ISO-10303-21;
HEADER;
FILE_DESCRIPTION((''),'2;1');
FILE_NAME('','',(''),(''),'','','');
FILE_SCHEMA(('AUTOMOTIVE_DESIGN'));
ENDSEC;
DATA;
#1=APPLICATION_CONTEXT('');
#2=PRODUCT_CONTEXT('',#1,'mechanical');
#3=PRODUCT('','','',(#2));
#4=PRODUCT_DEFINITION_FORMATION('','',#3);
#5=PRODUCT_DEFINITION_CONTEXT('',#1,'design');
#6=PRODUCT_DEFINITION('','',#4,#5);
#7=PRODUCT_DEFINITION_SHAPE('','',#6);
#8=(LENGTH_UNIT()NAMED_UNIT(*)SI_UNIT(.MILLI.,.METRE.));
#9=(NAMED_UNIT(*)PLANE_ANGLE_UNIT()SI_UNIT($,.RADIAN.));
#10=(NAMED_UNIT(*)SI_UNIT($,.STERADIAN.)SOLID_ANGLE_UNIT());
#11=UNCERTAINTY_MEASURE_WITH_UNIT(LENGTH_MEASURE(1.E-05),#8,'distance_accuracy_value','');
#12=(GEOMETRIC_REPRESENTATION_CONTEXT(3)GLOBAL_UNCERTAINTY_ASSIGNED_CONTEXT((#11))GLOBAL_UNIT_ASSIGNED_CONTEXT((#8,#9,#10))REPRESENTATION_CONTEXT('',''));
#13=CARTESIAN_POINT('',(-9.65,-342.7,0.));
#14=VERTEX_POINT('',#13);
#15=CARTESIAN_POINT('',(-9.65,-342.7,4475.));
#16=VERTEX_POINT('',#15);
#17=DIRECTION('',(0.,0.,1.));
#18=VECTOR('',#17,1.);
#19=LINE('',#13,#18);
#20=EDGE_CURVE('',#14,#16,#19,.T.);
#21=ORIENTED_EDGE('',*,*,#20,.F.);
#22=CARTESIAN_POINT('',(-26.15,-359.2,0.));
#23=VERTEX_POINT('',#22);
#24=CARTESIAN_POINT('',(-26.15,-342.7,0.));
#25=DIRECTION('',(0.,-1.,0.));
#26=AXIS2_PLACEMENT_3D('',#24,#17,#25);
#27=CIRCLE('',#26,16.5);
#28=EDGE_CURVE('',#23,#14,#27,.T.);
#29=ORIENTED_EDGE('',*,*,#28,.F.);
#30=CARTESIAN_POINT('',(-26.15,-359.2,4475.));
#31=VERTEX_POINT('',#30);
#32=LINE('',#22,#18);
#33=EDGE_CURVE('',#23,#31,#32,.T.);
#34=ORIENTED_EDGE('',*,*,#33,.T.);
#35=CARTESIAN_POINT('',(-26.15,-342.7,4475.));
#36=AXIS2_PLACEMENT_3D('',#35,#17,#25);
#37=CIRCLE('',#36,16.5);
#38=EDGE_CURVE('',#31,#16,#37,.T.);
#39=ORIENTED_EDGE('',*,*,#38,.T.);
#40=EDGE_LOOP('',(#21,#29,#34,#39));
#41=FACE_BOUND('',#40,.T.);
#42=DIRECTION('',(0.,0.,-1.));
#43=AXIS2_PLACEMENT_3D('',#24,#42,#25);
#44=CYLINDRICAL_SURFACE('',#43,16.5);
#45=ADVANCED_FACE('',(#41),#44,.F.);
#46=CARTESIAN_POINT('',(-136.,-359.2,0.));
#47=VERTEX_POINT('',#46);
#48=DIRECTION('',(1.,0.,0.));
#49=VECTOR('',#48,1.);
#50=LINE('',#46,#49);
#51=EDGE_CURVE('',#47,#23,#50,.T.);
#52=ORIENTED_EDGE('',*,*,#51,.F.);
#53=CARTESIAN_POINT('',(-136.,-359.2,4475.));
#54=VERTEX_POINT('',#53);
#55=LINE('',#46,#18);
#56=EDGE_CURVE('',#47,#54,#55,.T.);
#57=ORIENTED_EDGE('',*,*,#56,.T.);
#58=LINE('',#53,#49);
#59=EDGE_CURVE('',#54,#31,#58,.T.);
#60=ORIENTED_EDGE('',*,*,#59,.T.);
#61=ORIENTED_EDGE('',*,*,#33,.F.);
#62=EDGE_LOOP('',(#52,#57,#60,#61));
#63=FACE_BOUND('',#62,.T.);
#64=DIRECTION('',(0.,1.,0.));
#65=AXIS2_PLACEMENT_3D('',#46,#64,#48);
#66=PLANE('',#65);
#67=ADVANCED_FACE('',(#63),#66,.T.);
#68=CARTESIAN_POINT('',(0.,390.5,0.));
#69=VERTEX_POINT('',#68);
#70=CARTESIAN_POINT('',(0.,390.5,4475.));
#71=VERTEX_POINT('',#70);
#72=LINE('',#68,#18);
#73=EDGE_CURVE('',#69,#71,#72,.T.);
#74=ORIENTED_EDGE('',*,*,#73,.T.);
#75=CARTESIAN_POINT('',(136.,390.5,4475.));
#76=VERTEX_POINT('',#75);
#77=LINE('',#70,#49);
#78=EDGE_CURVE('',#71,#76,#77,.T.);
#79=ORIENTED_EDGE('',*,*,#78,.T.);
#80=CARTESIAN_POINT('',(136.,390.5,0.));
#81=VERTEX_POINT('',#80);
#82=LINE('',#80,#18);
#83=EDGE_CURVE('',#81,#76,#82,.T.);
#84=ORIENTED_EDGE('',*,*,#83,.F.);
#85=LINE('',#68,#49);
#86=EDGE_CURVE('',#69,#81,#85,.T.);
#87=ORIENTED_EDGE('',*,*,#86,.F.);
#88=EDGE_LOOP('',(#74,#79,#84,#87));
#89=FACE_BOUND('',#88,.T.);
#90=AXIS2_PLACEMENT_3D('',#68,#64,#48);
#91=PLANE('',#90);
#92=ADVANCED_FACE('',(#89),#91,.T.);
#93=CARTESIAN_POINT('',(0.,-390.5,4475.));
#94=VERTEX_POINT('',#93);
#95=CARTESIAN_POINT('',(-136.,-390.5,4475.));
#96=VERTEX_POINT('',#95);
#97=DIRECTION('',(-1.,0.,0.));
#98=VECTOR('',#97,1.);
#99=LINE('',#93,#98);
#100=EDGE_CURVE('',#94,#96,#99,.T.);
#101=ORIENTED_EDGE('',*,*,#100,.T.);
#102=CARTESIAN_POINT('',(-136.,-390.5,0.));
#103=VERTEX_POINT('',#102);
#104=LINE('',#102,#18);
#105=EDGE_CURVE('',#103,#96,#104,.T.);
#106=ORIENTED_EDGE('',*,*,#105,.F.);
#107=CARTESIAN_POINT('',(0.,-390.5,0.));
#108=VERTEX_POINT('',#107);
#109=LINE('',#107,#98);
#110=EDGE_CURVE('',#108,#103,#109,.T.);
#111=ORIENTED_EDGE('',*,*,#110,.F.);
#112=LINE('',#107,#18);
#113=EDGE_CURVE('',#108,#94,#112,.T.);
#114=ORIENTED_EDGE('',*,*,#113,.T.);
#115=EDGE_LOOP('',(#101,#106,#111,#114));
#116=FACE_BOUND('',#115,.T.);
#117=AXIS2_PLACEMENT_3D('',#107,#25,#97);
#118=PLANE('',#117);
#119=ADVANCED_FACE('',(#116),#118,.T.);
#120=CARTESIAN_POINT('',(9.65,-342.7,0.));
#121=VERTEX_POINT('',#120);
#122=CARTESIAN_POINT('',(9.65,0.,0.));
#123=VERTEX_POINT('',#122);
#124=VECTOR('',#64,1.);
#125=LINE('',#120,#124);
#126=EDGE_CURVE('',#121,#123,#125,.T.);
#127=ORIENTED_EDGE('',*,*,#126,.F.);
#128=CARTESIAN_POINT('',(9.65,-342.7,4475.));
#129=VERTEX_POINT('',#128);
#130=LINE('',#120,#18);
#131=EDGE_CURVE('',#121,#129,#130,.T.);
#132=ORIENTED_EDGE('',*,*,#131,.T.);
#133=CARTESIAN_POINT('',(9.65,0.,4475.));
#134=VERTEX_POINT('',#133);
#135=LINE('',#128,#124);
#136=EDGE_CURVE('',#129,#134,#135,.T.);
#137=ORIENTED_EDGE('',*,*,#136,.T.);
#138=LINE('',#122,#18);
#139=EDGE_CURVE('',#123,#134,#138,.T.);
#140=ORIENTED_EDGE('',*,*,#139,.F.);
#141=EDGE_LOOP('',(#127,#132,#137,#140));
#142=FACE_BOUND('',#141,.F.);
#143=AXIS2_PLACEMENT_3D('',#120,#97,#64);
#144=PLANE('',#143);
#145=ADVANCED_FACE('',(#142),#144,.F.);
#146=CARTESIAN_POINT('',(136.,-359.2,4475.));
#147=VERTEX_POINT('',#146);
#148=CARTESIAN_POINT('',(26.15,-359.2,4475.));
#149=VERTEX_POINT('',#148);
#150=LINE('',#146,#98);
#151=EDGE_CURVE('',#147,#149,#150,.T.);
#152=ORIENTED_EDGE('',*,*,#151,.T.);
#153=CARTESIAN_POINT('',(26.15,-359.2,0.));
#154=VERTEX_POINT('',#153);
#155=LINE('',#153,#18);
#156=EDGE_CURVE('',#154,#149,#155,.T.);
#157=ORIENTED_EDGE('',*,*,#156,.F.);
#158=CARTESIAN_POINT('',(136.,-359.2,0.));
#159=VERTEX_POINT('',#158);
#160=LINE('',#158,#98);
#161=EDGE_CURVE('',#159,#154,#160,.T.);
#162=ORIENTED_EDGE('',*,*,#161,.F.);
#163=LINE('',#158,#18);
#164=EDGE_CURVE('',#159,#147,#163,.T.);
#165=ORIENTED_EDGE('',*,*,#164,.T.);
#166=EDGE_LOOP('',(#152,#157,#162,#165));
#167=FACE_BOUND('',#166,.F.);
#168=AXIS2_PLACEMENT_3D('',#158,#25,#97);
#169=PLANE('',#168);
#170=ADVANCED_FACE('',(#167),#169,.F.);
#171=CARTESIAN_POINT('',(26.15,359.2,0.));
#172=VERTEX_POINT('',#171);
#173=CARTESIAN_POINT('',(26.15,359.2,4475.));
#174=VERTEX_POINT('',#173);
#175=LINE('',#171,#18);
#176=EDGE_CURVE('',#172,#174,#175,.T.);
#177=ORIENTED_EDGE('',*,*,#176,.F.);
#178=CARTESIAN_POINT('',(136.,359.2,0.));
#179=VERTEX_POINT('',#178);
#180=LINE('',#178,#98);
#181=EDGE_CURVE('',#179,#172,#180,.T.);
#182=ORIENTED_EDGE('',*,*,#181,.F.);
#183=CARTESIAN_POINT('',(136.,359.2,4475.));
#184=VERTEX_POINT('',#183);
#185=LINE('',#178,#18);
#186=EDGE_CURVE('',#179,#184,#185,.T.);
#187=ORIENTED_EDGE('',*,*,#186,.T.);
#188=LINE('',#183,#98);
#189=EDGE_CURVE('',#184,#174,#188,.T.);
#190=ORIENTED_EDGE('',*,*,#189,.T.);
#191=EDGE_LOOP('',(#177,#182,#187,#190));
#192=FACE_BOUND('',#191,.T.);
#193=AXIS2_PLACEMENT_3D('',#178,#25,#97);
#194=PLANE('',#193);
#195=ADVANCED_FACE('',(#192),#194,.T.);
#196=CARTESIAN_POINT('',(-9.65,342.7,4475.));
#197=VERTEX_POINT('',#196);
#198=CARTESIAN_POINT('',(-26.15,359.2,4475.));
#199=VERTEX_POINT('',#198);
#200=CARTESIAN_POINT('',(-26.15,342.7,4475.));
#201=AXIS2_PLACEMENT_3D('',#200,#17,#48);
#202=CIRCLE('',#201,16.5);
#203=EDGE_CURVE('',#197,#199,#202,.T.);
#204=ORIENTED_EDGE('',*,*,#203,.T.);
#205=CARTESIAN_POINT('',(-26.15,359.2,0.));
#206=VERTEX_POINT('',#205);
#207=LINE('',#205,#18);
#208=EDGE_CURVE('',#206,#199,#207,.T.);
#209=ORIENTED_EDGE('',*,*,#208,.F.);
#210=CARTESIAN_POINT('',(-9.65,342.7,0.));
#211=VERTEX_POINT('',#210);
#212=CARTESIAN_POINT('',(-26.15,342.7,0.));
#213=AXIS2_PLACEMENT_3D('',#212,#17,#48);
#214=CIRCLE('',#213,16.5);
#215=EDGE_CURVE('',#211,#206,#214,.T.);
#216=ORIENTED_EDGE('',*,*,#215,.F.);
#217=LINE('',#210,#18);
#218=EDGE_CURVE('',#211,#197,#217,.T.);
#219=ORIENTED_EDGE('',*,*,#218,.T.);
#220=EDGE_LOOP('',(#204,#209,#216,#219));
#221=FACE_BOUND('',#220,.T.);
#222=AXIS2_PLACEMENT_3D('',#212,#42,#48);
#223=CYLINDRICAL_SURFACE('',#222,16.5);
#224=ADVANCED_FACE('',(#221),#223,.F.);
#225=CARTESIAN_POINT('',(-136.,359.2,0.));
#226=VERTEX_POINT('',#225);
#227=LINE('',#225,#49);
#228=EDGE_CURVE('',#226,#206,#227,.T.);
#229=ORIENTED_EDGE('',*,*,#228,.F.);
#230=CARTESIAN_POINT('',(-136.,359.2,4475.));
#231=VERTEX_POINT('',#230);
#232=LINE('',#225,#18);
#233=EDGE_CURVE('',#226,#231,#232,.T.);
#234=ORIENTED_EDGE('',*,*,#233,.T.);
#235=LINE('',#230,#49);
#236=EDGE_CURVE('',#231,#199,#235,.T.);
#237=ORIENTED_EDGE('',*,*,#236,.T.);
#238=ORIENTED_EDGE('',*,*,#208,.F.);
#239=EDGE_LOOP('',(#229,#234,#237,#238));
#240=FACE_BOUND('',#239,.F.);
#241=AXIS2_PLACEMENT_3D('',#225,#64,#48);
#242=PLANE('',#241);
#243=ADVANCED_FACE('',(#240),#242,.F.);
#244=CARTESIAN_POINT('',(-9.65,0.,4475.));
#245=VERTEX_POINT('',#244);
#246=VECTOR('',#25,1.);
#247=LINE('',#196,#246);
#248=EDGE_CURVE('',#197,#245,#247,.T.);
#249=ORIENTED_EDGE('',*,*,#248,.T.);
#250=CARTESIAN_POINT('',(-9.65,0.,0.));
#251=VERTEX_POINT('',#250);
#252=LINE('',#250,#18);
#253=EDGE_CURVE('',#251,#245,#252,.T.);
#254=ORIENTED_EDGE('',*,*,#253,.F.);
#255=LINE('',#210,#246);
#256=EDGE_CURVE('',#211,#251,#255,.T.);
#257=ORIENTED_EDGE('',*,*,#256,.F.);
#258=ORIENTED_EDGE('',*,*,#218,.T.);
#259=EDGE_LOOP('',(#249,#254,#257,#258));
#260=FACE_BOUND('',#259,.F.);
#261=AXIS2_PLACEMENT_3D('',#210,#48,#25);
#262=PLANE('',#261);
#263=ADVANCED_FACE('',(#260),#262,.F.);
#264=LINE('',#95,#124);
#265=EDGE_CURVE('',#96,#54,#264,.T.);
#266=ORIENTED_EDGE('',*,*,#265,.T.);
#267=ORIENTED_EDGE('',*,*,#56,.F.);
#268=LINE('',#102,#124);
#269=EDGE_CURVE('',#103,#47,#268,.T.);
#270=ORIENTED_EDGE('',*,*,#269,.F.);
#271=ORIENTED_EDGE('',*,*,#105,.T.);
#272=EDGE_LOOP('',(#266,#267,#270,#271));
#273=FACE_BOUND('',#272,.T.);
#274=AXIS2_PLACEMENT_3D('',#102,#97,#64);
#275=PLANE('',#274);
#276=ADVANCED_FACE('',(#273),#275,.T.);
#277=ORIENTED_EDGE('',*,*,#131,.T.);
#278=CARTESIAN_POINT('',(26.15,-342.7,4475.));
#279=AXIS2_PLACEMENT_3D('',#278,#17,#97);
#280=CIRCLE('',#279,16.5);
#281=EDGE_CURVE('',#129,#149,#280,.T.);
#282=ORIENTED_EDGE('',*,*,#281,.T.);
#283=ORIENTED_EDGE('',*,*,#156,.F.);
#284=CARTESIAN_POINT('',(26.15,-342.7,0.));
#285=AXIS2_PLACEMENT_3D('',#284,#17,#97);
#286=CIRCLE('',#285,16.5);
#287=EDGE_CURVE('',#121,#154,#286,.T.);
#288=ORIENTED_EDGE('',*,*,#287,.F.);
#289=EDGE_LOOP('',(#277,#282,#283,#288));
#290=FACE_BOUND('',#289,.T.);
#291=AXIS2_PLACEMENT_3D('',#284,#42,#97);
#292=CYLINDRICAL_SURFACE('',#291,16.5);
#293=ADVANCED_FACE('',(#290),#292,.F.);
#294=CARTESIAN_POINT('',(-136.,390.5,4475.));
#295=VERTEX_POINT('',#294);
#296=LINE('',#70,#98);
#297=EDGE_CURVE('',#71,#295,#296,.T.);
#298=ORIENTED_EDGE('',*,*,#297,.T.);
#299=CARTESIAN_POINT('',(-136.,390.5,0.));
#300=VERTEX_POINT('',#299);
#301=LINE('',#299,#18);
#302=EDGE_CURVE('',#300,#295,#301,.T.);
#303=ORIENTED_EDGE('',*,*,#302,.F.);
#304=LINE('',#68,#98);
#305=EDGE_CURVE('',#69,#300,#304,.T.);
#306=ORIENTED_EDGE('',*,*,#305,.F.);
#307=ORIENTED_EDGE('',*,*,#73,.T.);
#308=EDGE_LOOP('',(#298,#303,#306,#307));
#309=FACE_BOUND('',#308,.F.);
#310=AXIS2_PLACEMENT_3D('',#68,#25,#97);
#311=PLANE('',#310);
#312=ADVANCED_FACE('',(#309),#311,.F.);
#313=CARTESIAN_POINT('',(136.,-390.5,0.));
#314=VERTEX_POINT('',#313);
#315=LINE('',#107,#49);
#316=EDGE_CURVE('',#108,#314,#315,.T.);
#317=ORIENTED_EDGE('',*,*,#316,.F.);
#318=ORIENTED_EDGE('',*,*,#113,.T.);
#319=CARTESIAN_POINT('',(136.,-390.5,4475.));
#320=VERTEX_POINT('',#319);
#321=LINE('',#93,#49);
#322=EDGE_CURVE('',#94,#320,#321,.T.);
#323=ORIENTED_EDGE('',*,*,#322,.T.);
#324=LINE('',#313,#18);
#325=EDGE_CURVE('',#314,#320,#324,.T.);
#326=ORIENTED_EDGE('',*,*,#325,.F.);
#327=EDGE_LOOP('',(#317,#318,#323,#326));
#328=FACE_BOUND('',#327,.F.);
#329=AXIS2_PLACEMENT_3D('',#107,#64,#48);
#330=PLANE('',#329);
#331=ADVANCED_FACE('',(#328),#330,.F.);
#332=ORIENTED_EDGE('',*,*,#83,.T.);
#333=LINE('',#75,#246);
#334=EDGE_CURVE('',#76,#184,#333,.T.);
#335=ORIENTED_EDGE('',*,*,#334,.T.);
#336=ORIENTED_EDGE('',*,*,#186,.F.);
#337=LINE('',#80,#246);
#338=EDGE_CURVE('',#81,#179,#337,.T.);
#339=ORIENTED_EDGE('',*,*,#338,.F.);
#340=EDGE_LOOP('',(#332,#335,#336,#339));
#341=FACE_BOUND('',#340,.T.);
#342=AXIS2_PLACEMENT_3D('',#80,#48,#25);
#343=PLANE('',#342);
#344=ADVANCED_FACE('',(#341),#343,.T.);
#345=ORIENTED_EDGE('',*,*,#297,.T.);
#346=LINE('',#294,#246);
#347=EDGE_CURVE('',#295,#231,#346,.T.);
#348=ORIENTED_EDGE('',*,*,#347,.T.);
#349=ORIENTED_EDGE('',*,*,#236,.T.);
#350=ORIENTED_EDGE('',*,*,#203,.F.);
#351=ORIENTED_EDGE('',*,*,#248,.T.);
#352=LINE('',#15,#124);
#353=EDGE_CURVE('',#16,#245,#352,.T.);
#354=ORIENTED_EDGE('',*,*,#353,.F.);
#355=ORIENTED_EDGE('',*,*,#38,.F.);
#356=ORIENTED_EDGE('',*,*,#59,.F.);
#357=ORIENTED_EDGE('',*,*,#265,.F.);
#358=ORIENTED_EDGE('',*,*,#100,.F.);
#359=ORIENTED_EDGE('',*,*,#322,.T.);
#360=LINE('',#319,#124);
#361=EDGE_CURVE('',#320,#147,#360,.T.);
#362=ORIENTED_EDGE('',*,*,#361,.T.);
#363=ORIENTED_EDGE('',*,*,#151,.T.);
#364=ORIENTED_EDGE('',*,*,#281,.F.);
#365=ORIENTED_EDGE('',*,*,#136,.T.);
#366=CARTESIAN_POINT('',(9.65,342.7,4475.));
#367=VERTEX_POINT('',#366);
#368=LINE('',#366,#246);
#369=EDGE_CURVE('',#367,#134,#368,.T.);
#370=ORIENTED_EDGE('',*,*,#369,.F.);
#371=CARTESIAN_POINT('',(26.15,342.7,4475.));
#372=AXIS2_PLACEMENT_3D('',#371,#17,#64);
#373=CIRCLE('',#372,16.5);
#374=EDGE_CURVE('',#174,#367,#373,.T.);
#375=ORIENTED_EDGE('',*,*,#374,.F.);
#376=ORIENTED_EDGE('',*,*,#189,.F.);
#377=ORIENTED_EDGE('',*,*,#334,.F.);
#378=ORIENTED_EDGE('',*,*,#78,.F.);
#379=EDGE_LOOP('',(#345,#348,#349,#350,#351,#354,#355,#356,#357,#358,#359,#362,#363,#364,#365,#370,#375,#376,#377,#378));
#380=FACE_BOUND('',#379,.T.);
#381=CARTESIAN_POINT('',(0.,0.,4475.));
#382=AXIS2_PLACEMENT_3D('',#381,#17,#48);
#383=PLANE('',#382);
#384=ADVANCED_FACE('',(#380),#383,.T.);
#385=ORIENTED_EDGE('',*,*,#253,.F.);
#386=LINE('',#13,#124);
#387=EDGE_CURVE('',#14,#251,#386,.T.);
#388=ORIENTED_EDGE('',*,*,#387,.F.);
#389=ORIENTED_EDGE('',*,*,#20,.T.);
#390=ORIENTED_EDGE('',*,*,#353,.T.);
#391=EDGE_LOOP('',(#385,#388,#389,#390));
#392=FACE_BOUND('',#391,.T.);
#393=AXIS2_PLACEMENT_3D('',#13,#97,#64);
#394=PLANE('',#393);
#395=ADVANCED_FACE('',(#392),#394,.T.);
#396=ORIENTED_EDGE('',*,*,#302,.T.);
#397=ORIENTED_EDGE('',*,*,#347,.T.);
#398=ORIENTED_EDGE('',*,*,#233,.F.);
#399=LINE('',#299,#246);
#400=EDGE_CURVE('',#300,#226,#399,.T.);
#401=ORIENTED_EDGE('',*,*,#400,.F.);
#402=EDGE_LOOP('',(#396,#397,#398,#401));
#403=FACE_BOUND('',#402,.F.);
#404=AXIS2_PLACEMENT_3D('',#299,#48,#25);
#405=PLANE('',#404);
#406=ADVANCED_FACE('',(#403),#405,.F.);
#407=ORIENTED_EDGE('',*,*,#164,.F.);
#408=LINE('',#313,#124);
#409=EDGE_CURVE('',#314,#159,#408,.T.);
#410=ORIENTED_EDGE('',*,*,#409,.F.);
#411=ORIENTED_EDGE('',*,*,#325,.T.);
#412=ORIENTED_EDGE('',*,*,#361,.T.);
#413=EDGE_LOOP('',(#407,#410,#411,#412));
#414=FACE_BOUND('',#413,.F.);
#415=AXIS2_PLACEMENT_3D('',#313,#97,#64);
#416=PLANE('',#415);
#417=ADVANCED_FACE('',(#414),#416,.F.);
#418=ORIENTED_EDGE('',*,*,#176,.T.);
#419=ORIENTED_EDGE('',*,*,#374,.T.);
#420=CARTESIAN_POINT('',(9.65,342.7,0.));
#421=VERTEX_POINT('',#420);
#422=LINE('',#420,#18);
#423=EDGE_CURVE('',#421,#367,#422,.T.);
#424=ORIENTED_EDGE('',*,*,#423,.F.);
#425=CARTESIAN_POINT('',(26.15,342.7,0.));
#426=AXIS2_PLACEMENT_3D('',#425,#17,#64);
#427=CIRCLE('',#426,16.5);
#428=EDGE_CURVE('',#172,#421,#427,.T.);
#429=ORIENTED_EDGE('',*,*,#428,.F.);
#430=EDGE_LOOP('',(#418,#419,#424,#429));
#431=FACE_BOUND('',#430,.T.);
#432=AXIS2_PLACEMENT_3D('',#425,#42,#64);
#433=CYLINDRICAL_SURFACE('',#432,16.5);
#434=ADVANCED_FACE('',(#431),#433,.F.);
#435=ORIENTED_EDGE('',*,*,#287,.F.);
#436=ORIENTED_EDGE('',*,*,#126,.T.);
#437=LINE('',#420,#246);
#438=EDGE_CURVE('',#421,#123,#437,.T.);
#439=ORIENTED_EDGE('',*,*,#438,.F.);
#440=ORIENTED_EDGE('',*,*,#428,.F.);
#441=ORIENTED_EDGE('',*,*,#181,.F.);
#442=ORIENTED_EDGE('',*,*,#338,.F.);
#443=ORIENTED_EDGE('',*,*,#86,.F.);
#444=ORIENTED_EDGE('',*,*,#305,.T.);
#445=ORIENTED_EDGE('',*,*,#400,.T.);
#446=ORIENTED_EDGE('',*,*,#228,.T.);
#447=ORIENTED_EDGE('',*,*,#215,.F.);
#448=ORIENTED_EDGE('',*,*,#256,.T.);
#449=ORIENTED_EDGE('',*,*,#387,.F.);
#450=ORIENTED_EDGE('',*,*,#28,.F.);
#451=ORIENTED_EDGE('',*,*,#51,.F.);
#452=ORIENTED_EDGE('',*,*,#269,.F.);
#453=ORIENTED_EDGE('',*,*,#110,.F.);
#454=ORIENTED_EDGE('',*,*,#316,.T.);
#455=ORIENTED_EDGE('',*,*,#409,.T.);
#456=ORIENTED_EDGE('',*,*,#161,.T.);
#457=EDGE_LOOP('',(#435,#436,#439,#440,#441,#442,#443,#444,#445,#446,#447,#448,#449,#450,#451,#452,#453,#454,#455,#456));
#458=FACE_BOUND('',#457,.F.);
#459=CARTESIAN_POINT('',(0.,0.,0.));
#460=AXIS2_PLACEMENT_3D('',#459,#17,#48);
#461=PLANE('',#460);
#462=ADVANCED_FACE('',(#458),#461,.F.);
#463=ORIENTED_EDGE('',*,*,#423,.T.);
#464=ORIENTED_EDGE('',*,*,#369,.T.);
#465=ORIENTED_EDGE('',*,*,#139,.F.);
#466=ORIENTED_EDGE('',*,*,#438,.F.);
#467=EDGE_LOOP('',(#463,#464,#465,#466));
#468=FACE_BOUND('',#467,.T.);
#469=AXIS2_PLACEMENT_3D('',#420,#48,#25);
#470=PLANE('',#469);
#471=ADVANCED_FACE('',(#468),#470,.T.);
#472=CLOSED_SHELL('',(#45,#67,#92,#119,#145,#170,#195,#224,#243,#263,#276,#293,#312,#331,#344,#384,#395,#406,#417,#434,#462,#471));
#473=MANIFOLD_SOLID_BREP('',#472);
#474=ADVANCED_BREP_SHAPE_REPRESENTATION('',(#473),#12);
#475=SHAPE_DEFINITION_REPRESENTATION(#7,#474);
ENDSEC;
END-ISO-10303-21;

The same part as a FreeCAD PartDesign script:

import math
import FreeCAD as App
import Part
import Sketcher
from FreeCAD import Vector
Q = App.Units.Quantity

doc = App.newDocument("Part")
params = doc.addObject("Spreadsheet::Sheet", "Params")
for row, (alias, value) in enumerate([
    ("sketch1_radius", "16.5 mm"),
    ("sketch1_height", "31.3 mm"),
    ("pad1_length", "4475 mm"),
], start=1):
    params.set(f"A{row}", alias)
    params.set(f"B{row}", "=" + value)
    params.setAlias(f"B{row}", alias)

body = doc.addObject("PartDesign::Body", "Body")

# Sketch on XY plane
sketch1 = body.newObject("Sketcher::SketchObject", "Sketch")
sketch1.AttachmentSupport = (doc.getObject("XY_Plane"), [""])
sketch1.MapMode = "FlatFace"
sketch1.addGeometry(Part.LineSegment(Vector(-136, -359, 0), Vector(-136, -390, 0)), False)
sketch1.addGeometry(Part.LineSegment(Vector(-136, -390, 0), Vector(136, -390, 0)), False)
sketch1.addGeometry(Part.LineSegment(Vector(136, -390, 0), Vector(136, -359, 0)), False)
sketch1.addGeometry(Part.LineSegment(Vector(136, -359, 0), Vector(26, -359, 0)), False)
sketch1.addGeometry(Part.ArcOfCircle(Part.Circle(Vector(26, -343, 0), Vector(0, 0, 1), 16), math.radians(180), math.radians(270)), False)
sketch1.addGeometry(Part.LineSegment(Vector(10, -343, 0), Vector(10, 343, 0)), False)
sketch1.addGeometry(Part.ArcOfCircle(Part.Circle(Vector(26, 343, 0), Vector(0, 0, 1), 16), math.radians(90), math.radians(180)), False)
sketch1.addGeometry(Part.LineSegment(Vector(26, 359, 0), Vector(136, 359, 0)), False)
sketch1.addGeometry(Part.LineSegment(Vector(136, 359, 0), Vector(136, 390, 0)), False)
sketch1.addGeometry(Part.LineSegment(Vector(136, 390, 0), Vector(-136, 390, 0)), False)
sketch1.addGeometry(Part.LineSegment(Vector(-136, 390, 0), Vector(-136, 359, 0)), False)
sketch1.addGeometry(Part.LineSegment(Vector(-136, 359, 0), Vector(-26, 359, 0)), False)
sketch1.addGeometry(Part.ArcOfCircle(Part.Circle(Vector(-26, 343, 0), Vector(0, 0, 1), 16), math.radians(0), math.radians(90)), False)
sketch1.addGeometry(Part.LineSegment(Vector(-10, 343, 0), Vector(-10, -343, 0)), False)
sketch1.addGeometry(Part.ArcOfCircle(Part.Circle(Vector(-26, -343, 0), Vector(0, 0, 1), 16), math.radians(-90), math.radians(0)), False)
sketch1.addGeometry(Part.LineSegment(Vector(-26, -359, 0), Vector(-136, -359, 0)), False)
sketch1.addConstraint(Sketcher.Constraint("Coincident", 0, 2, 1, 1))
sketch1.addConstraint(Sketcher.Constraint("Coincident", 1, 2, 2, 1))
sketch1.addConstraint(Sketcher.Constraint("Coincident", 2, 2, 3, 1))
sketch1.addConstraint(Sketcher.Constraint("Tangent", 3, 2, 4, 2))
sketch1.addConstraint(Sketcher.Constraint("Tangent", 4, 1, 5, 1))
sketch1.addConstraint(Sketcher.Constraint("Tangent", 5, 2, 6, 2))
sketch1.addConstraint(Sketcher.Constraint("Tangent", 6, 1, 7, 1))
sketch1.addConstraint(Sketcher.Constraint("Coincident", 7, 2, 8, 1))
sketch1.addConstraint(Sketcher.Constraint("Coincident", 8, 2, 9, 1))
sketch1.addConstraint(Sketcher.Constraint("Coincident", 9, 2, 10, 1))
sketch1.addConstraint(Sketcher.Constraint("Coincident", 10, 2, 11, 1))
sketch1.addConstraint(Sketcher.Constraint("Tangent", 11, 2, 12, 2))
sketch1.addConstraint(Sketcher.Constraint("Tangent", 12, 1, 13, 1))
sketch1.addConstraint(Sketcher.Constraint("Tangent", 13, 2, 14, 2))
sketch1.addConstraint(Sketcher.Constraint("Tangent", 14, 1, 15, 1))
sketch1.addConstraint(Sketcher.Constraint("Coincident", 15, 2, 0, 1))
sketch1.addConstraint(Sketcher.Constraint("Vertical", 0))
sketch1.addConstraint(Sketcher.Constraint("Horizontal", 1))
sketch1.addConstraint(Sketcher.Constraint("Vertical", 2))
sketch1.addConstraint(Sketcher.Constraint("Horizontal", 3))
sketch1.addConstraint(Sketcher.Constraint("Vertical", 5))
sketch1.addConstraint(Sketcher.Constraint("Horizontal", 7))
sketch1.addConstraint(Sketcher.Constraint("Vertical", 8))
sketch1.addConstraint(Sketcher.Constraint("Horizontal", 9))
sketch1.addConstraint(Sketcher.Constraint("Vertical", 10))
sketch1.addConstraint(Sketcher.Constraint("Horizontal", 11))
sketch1.addConstraint(Sketcher.Constraint("Vertical", 13))
sketch1.addConstraint(Sketcher.Constraint("Horizontal", 15))
sketch1.addConstraint(Sketcher.Constraint("Equal", 4, 6))
sketch1.addConstraint(Sketcher.Constraint("Equal", 6, 12))
sketch1.addConstraint(Sketcher.Constraint("Equal", 12, 14))
sketch1.addConstraint(Sketcher.Constraint("Symmetric", 4, 3, 12, 3, -1, 1))
sketch1.addConstraint(Sketcher.Constraint("Symmetric", 0, 2, 8, 2, -1, 1))
sketch1.addConstraint(Sketcher.Constraint("Symmetric", 7, 2, 10, 2, -2))
sketch1.addConstraint(Sketcher.Constraint("Symmetric", 2, 2, 15, 2, -2))
sketch1.addConstraint(Sketcher.Constraint("Radius", 4, Q("16.5 mm")))
sketch1.addConstraint(Sketcher.Constraint("DistanceY", 0, 2, 0, 1, Q("31.3 mm")))
sketch1.addConstraint(Sketcher.Constraint("DistanceX", 0, 2, -1, 1, Q("136 mm")))
sketch1.addConstraint(Sketcher.Constraint("DistanceY", 0, 2, -1, 1, Q("390.5 mm")))
sketch1.addConstraint(Sketcher.Constraint("DistanceX", -1, 1, 4, 1, Q("9.65 mm")))
sketch1.setExpression("Constraints[35]", "Params.sketch1_radius")
sketch1.setExpression("Constraints[36]", "Params.sketch1_height")
pad1 = body.newObject("PartDesign::Pad", "Pad")
pad1.Profile = sketch1
pad1.setExpression("Length", "Params.pad1_length")

doc.recompute()
